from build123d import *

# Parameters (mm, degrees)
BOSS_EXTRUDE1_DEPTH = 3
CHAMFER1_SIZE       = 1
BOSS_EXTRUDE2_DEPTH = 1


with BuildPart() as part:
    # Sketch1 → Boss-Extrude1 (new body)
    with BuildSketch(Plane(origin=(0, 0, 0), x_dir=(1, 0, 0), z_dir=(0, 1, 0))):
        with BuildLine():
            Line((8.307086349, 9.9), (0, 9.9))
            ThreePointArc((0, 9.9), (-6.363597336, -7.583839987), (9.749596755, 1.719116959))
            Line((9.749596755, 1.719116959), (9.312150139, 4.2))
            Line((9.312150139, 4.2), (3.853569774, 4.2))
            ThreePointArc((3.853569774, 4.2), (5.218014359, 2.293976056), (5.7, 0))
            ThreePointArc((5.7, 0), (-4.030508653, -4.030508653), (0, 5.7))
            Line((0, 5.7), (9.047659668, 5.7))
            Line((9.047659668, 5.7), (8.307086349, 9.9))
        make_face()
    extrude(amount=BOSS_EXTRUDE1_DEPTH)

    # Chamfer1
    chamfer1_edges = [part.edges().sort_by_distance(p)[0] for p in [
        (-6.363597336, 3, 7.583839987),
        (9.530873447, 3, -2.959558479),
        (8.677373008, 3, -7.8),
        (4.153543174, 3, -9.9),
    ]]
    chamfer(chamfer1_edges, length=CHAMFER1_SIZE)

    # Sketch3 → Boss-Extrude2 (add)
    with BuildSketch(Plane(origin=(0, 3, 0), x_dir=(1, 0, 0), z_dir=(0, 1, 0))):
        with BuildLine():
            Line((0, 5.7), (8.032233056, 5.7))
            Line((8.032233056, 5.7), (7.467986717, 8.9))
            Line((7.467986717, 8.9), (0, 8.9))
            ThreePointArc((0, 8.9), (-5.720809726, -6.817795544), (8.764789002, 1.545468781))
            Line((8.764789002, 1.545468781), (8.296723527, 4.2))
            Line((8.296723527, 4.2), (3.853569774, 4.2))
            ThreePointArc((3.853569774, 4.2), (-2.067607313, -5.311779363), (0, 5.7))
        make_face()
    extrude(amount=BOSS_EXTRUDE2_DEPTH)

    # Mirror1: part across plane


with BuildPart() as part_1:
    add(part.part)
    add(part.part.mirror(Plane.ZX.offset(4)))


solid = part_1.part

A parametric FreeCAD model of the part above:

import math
import FreeCAD as App
import Part
import Sketcher

V = App.Vector
Q = App.Units.Quantity


def edges_at(feature, points):
    """Names of the edges that pass closest to the given points."""
    edges = feature.Shape.Edges
    near = lambda p: min(range(len(edges)), key=lambda i: edges[i].distToShape(Part.Vertex(*p))[0])
    return sorted({f"Edge{near(p) + 1}" for p in points})

doc = App.newDocument("Part")
body = doc.addObject("PartDesign::Body", "Body")

sketch1 = body.newObject("Sketcher::SketchObject", "Sketch")
sketch1.AttachmentSupport = (doc.getObject("XZ_Plane"), [""])
sketch1.MapMode = "FlatFace"
sketch1.addGeometry(Part.LineSegment(V(8.307086, -9.9, 0), V(0, -9.9, 0)), False)
sketch1.addGeometry(Part.ArcOfCircle(Part.Circle(V(0, 0, 0), V(0, 0, 1), 9.9), math.radians(-10), math.radians(270)), False)
sketch1.addGeometry(Part.LineSegment(V(9.749597, -1.719117, 0), V(9.31215, -4.2, 0)), False)
sketch1.addGeometry(Part.LineSegment(V(9.31215, -4.2, 0), V(3.85357, -4.2, 0)), False)
sketch1.addGeometry(Part.ArcOfCircle(Part.Circle(V(0, 0, 0), V(0, 0, 1), 5.7), math.radians(-47.463102), math.radians(0)), False)
sketch1.addGeometry(Part.ArcOfCircle(Part.Circle(V(0, 0, 0), V(0, 0, 1), 5.7), math.radians(0), math.radians(270)), False)
sketch1.addGeometry(Part.LineSegment(V(0, -5.7, 0), V(9.04766, -5.7, 0)), False)
sketch1.addGeometry(Part.LineSegment(V(9.04766, -5.7, 0), V(8.307086, -9.9, 0)), False)
sketch1.addConstraint(Sketcher.Constraint("Tangent", 0, 2, 1, 2))
sketch1.addConstraint(Sketcher.Constraint("Tangent", 1, 1, 2, 1))
sketch1.addConstraint(Sketcher.Constraint("Coincident", 2, 2, 3, 1))
sketch1.addConstraint(Sketcher.Constraint("Coincident", 3, 2, 4, 1))
sketch1.addConstraint(Sketcher.Constraint("Tangent", 4, 2, 5, 1))
sketch1.addConstraint(Sketcher.Constraint("Tangent", 5, 2, 6, 1))
sketch1.addConstraint(Sketcher.Constraint("Coincident", 6, 2, 7, 1))
sketch1.addConstraint(Sketcher.Constraint("Coincident", 7, 2, 0, 1))
sketch1.addConstraint(Sketcher.Constraint("Horizontal", 0))
sketch1.addConstraint(Sketcher.Constraint("Horizontal", 3))
sketch1.addConstraint(Sketcher.Constraint("Horizontal", 6))
sketch1.addConstraint(Sketcher.Constraint("Coincident", 1, 3, -1, 1))
sketch1.addConstraint(Sketcher.Constraint("Coincident", 4, 3, -1, 1))
sketch1.addConstraint(Sketcher.Constraint("Equal", 4, 5))
sketch1.addConstraint(Sketcher.Constraint("PointOnObject", 4, 2, -1))
sketch1.addConstraint(Sketcher.Constraint("Parallel", 2, 7))
sketch1.addConstraint(Sketcher.Constraint("Radius", 1, Q("9.9 mm")))
sketch1.addConstraint(Sketcher.Constraint("Radius", 4, Q("5.7 mm")))
sketch1.addConstraint(Sketcher.Constraint("Angle", 2, Q("-100 deg")))
sketch1.addConstraint(Sketcher.Constraint("DistanceY", 2, 2, -1, 1, Q("4.2 mm")))
sketch1.addConstraint(Sketcher.Constraint("DistanceX", 6, 1, 6, 2, Q("9.04766 mm")))
pad1 = body.newObject("PartDesign::Pad", "Pad")
pad1.Profile = sketch1
pad1.Length = 3
pad1.Reversed = True
doc.recompute()

chamfer = body.newObject("PartDesign::Chamfer", "Chamfer")
chamfer.Base = (pad1, edges_at(pad1, [
    (-6.364, 3, 7.584),
    (9.531, 3, -2.96),
    (8.677, 3, -7.8),
    (4.154, 3, -9.9),
]))
chamfer.Size = 1

sketch2 = body.newObject("Sketcher::SketchObject", "Sketch001")
sketch2.AttachmentSupport = (doc.getObject("XZ_Plane"), [""])
sketch2.MapMode = "FlatFace"
sketch2.AttachmentOffset = App.Placement(V(0, 0, -3), App.Rotation())
sketch2.addGeometry(Part.LineSegment(V(0, -5.7, 0), V(8.032233, -5.7, 0)), False)
sketch2.addGeometry(Part.LineSegment(V(8.032233, -5.7, 0), V(7.467987, -8.9, 0)), False)
sketch2.addGeometry(Part.LineSegment(V(7.467987, -8.9, 0), V(0, -8.9, 0)), False)
sketch2.addGeometry(Part.ArcOfCircle(Part.Circle(V(0, 0, 0), V(0, 0, 1), 8.9), math.radians(-10), math.radians(270)), False)
sketch2.addGeometry(Part.LineSegment(V(8.764789, -1.545469, 0), V(8.296724, -4.2, 0)), False)
sketch2.addGeometry(Part.LineSegment(V(8.296724, -4.2, 0), V(3.85357, -4.2, 0)), False)
sketch2.addGeometry(Part.ArcOfCircle(Part.Circle(V(0, 0, 0), V(0, 0, 1), 5.7), math.radians(-47.463102), math.radians(270)), False)
sketch2.addConstraint(Sketcher.Constraint("Coincident", 0, 2, 1, 1))
sketch2.addConstraint(Sketcher.Constraint("Coincident", 1, 2, 2, 1))
sketch2.addConstraint(Sketcher.Constraint("Tangent", 2, 2, 3, 2))
sketch2.addConstraint(Sketcher.Constraint("Tangent", 3, 1, 4, 1))
sketch2.addConstraint(Sketcher.Constraint("Coincident", 4, 2, 5, 1))
sketch2.addConstraint(Sketcher.Constraint("Coincident", 5, 2, 6, 1))
sketch2.addConstraint(Sketcher.Constraint("Tangent", 6, 2, 0, 1))
sketch2.addConstraint(Sketcher.Constraint("Horizontal", 0))
sketch2.addConstraint(Sketcher.Constraint("Horizontal", 2))
sketch2.addConstraint(Sketcher.Constraint("Horizontal", 5))
sketch2.addConstraint(Sketcher.Constraint("Coincident", 3, 3, -1, 1))
sketch2.addConstraint(Sketcher.Constraint("Coincident", 6, 3, -1, 1))
sketch2.addConstraint(Sketcher.Constraint("Parallel", 1, 4))
sketch2.addConstraint(Sketcher.Constraint("Radius", 3, Q("8.9 mm")))
sketch2.addConstraint(Sketcher.Constraint("Radius", 6, Q("5.7 mm")))
sketch2.addConstraint(Sketcher.Constraint("Angle", 1, Q("-100 deg")))
sketch2.addConstraint(Sketcher.Constraint("DistanceY", 4, 2, -1, 1, Q("4.2 mm")))
sketch2.addConstraint(Sketcher.Constraint("DistanceX", 0, 1, 0, 2, Q("8.032233 mm")))
pad2 = body.newObject("PartDesign::Pad", "Pad001")
pad2.Profile = sketch2
pad2.Length = 1
pad2.Reversed = True
body2 = doc.addObject("PartDesign::Body", "Body001")
doc.recompute()

body2.BaseFeature = body
doc.recompute()

mirroring = doc.addObject("Part::Mirroring", "Mirroring")
mirroring.Source = body
mirroring.Base = V(0, 4, 0)
mirroring.Normal = V(0, 1, 0)
body3 = doc.addObject("PartDesign::Body", "Body002")
body3.BaseFeature = mirroring
boolean = body2.newObject("PartDesign::Boolean", "Boolean")
boolean.Type = "Fuse"
boolean.addObjects([body3])
doc.recompute()
mirroring.Visibility = False

doc.recompute()
